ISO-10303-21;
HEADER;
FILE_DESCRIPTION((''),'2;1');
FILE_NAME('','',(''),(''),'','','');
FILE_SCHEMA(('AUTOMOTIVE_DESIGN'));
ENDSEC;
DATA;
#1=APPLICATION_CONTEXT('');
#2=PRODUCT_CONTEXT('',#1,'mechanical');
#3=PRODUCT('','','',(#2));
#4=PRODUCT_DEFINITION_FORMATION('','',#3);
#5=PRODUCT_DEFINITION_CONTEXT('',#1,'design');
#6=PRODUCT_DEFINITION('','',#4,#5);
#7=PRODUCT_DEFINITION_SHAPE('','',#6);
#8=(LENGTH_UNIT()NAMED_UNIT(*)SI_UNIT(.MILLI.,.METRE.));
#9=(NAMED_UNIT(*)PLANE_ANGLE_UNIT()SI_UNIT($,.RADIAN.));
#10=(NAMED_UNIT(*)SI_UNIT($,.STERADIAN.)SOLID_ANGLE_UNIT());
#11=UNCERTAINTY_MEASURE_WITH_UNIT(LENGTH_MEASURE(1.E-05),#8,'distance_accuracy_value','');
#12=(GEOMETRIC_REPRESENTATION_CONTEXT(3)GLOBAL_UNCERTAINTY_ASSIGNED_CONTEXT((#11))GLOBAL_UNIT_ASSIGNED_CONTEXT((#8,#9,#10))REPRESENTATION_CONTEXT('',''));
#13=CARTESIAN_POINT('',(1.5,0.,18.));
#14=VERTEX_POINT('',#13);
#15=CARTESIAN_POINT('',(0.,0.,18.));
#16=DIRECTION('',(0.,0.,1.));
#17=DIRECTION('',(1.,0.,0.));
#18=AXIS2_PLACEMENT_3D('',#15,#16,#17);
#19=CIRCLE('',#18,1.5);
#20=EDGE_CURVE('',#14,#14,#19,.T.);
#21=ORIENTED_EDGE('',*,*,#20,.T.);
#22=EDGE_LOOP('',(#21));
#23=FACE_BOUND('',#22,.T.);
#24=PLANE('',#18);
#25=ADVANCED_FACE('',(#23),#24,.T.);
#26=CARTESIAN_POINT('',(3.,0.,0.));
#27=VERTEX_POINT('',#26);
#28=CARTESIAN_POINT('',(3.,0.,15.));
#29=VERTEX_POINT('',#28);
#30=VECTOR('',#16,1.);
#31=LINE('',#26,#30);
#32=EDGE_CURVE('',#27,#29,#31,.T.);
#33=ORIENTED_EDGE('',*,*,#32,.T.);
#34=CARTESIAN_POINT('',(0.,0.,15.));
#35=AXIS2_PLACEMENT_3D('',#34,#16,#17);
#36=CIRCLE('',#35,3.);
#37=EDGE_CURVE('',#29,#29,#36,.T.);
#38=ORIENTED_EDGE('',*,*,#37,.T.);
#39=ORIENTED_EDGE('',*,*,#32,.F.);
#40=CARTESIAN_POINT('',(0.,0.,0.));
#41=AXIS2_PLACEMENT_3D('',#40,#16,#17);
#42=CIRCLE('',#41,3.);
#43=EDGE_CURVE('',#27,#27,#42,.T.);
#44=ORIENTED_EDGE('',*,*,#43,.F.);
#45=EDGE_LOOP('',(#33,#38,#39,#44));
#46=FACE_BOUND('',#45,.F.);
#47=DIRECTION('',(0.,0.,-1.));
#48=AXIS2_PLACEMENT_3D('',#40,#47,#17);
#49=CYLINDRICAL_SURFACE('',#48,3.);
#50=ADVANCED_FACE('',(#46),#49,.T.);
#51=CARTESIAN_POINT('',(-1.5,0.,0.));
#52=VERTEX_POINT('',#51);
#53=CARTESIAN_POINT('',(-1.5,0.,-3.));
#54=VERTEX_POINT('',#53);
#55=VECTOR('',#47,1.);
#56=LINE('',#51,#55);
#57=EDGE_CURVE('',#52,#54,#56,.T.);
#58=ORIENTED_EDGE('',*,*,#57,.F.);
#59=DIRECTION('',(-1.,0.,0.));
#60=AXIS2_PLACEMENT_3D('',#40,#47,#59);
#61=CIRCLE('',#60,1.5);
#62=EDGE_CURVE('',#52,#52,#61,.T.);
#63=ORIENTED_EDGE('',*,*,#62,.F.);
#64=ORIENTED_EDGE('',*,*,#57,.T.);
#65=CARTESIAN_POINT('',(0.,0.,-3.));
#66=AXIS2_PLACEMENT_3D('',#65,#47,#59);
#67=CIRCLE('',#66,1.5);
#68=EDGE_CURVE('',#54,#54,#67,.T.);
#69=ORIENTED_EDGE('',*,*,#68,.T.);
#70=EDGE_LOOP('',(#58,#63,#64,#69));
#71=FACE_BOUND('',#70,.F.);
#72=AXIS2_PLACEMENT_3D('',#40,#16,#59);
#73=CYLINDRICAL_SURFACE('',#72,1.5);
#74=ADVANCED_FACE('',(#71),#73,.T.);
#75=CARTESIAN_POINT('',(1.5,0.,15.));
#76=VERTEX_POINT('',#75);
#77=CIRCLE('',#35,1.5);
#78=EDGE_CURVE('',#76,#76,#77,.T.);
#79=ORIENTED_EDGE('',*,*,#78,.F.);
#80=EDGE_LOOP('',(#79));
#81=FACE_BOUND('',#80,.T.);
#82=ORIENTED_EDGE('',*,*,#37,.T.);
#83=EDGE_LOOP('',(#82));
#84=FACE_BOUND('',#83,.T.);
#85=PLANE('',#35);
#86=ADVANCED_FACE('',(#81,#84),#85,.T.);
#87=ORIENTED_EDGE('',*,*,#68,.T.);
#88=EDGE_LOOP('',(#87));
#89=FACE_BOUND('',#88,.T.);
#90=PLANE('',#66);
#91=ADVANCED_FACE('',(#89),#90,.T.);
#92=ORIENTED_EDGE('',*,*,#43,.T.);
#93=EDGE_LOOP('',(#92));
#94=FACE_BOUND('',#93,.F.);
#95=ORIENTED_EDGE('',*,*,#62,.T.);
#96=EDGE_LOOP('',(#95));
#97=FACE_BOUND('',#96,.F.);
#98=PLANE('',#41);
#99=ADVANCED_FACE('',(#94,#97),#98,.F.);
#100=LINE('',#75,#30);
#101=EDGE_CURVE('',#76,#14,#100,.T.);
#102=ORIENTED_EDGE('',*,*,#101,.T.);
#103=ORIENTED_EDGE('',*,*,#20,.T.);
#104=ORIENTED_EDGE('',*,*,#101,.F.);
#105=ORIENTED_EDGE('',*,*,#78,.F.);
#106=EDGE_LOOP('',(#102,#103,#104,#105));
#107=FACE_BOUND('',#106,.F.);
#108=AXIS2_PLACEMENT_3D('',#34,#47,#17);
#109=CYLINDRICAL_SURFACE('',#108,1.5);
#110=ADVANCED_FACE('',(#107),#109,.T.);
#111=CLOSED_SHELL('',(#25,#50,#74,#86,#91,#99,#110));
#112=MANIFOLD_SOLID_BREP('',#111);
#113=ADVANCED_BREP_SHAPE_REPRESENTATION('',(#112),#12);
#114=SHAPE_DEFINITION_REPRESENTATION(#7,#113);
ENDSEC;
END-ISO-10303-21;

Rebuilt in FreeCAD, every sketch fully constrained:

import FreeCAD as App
import Part
import Sketcher
Q = App.Units.Quantity

doc = App.newDocument("Part")
body = doc.addObject("PartDesign::Body", "Body")

# Sketch on XY plane
sketch1 = body.newObject("Sketcher::SketchObject", "Sketch")
sketch1.AttachmentSupport = (doc.getObject("XY_Plane"), [""])
sketch1.MapMode = "FlatFace"
sketch1.addGeometry(Part.Circle(App.Vector(0, 0, 0), App.Vector(0, 0, 1), 3), False)
sketch1.addConstraint([
    Sketcher.Constraint("Coincident", 0, 3, -1, 1),
    Sketcher.Constraint("Diameter", 0, Q("6 mm")),
])
pad1 = body.newObject("PartDesign::Pad", "Pad")
pad1.Profile = sketch1
pad1.Length = 15

# Sketch on XY plane
sketch2 = body.newObject("Sketcher::SketchObject", "Sketch001")
sketch2.AttachmentSupport = (doc.getObject("XY_Plane"), [""])
sketch2.MapMode = "FlatFace"
sketch2.AttachmentOffset = App.Placement(App.Vector(0, 0, 15), App.Rotation())
sketch2.addGeometry(Part.Circle(App.Vector(0, 0, 0), App.Vector(0, 0, 1), 1.5), False)
sketch2.addConstraint([
    Sketcher.Constraint("Coincident", 0, 3, -1, 1),
    Sketcher.Constraint("Diameter", 0, Q("3 mm")),
])
pad2 = body.newObject("PartDesign::Pad", "Pad001")
pad2.Profile = sketch2
pad2.Length = 3

# Sketch on XY plane
sketch3 = body.newObject("Sketcher::SketchObject", "Sketch002")
sketch3.AttachmentSupport = (doc.getObject("XY_Plane"), [""])
sketch3.MapMode = "FlatFace"
sketch3.addGeometry(Part.Circle(App.Vector(0, 0, 0), App.Vector(0, 0, 1), 1.5), False)
sketch3.addConstraint([
    Sketcher.Constraint("Coincident", 0, 3, -1, 1),
    Sketcher.Constraint("Diameter", 0, Q("3 mm")),
])
pad3 = body.newObject("PartDesign::Pad", "Pad002")
pad3.Profile = sketch3
pad3.Length = 3
pad3.Reversed = True

doc.recompute()
